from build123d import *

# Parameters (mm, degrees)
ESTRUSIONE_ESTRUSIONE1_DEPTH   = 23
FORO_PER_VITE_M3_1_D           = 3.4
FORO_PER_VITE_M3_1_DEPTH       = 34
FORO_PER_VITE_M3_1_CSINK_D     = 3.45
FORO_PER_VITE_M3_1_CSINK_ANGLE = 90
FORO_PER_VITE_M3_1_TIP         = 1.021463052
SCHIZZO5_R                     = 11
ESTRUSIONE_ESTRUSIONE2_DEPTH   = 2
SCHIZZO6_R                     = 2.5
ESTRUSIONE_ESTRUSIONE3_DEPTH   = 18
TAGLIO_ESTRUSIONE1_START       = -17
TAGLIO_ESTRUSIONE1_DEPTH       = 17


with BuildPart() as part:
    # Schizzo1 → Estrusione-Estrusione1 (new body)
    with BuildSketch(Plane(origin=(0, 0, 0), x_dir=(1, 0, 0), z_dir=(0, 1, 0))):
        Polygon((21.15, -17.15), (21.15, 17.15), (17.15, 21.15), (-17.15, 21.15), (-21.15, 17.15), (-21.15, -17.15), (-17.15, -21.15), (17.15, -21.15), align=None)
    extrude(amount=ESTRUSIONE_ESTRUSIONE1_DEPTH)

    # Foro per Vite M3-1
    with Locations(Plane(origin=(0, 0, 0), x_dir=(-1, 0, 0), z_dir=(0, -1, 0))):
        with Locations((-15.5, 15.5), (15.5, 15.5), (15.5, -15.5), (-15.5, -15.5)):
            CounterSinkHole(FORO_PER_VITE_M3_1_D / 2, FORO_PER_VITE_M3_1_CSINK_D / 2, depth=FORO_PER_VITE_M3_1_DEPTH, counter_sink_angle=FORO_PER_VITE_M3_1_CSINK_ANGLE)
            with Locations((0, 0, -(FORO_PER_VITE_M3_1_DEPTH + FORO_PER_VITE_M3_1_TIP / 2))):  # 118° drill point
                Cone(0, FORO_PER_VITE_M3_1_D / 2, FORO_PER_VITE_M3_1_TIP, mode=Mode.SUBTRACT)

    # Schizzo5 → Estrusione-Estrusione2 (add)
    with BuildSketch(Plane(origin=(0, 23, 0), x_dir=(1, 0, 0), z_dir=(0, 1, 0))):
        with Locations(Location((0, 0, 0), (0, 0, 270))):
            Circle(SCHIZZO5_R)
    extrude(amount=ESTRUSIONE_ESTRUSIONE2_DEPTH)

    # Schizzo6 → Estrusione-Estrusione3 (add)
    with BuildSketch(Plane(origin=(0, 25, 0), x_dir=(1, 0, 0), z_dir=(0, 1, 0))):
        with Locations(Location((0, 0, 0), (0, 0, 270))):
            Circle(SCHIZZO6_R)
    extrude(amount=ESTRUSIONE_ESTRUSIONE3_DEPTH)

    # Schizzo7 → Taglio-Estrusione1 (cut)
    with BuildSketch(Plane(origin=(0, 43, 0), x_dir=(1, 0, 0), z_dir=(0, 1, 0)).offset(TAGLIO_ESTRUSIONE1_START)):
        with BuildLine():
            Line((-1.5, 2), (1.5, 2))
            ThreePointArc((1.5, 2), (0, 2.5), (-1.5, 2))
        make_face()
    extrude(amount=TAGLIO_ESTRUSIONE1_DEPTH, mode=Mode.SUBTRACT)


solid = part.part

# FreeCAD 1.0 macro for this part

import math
import FreeCAD as App
import Part
import Sketcher
from FreeCAD import Vector
Q = App.Units.Quantity

doc = App.newDocument("Part")
body = doc.addObject("PartDesign::Body", "Body")

# Sketch on XZ plane
sketch1 = doc.addObject("Sketcher::SketchObject", "Sketch")
body.addObject(sketch1)
sketch1.AttachmentSupport = (doc.XZ_Plane, [""])
sketch1.MapMode = "FlatFace"
sketch1.addGeometry(Part.LineSegment(Vector(21, 17, 0), Vector(21, -17, 0)), False)
sketch1.addGeometry(Part.LineSegment(Vector(21, -17, 0), Vector(17, -21, 0)), False)
sketch1.addGeometry(Part.LineSegment(Vector(17, -21, 0), Vector(-17, -21, 0)), False)
sketch1.addGeometry(Part.LineSegment(Vector(-17, -21, 0), Vector(-21, -17, 0)), False)
sketch1.addGeometry(Part.LineSegment(Vector(-21, -17, 0), Vector(-21, 17, 0)), False)
sketch1.addGeometry(Part.LineSegment(Vector(-21, 17, 0), Vector(-17, 21, 0)), False)
sketch1.addGeometry(Part.LineSegment(Vector(-17, 21, 0), Vector(17, 21, 0)), False)
sketch1.addGeometry(Part.LineSegment(Vector(17, 21, 0), Vector(21, 17, 0)), False)
sketch1.addConstraint(Sketcher.Constraint("Coincident", 0, 2, 1, 1))
sketch1.addConstraint(Sketcher.Constraint("Coincident", 1, 2, 2, 1))
sketch1.addConstraint(Sketcher.Constraint("Coincident", 2, 2, 3, 1))
sketch1.addConstraint(Sketcher.Constraint("Coincident", 3, 2, 4, 1))
sketch1.addConstraint(Sketcher.Constraint("Coincident", 4, 2, 5, 1))
sketch1.addConstraint(Sketcher.Constraint("Coincident", 5, 2, 6, 1))
sketch1.addConstraint(Sketcher.Constraint("Coincident", 6, 2, 7, 1))
sketch1.addConstraint(Sketcher.Constraint("Coincident", 7, 2, 0, 1))
sketch1.addConstraint(Sketcher.Constraint("Vertical", 0))
sketch1.addConstraint(Sketcher.Constraint("Horizontal", 2))
sketch1.addConstraint(Sketcher.Constraint("Vertical", 4))
sketch1.addConstraint(Sketcher.Constraint("Horizontal", 6))
sketch1.addConstraint(Sketcher.Constraint("Symmetric", 0, 2, 4, 2, -1, 1))
sketch1.addConstraint(Sketcher.Constraint("Symmetric", 1, 2, 5, 2, -1, 1))
sketch1.addConstraint(Sketcher.Constraint("Perpendicular", 1, 3))
sketch1.addConstraint(Sketcher.Constraint("Perpendicular", 5, 7))
sketch1.addConstraint(Sketcher.Constraint("Horizontal", 0, 2, 3, 2))
sketch1.addConstraint(Sketcher.Constraint("Horizontal", 4, 2, 7, 2))
sketch1.addConstraint(Sketcher.Constraint("Vertical", 2, 2, 5, 2))
sketch1.addConstraint(Sketcher.Constraint("Equal", 6, 0))
sketch1.addConstraint(Sketcher.Constraint("DistanceX", 2, 2, 2, 1, Q("34.3 mm")))
sketch1.addConstraint(Sketcher.Constraint("DistanceX", 1, 2, 0, 2, Q("4 mm")))
pad1 = doc.addObject("PartDesign::Pad", "Pad")
body.addObject(pad1)
pad1.Profile = sketch1
pad1.Length = 23
pad1.Reversed = True

# Sketch on XZ plane
sketch2 = doc.addObject("Sketcher::SketchObject", "Sketch001")
body.addObject(sketch2)
sketch2.AttachmentSupport = (doc.XZ_Plane, [""])
sketch2.MapMode = "FlatFace"
sketch2.addGeometry(Part.Circle(Vector(15.5, -15.5, 0), Vector(0, 0, 1), 1.7), False)
sketch2.addGeometry(Part.Circle(Vector(-15.5, -15.5, 0), Vector(0, 0, 1), 1.7), False)
sketch2.addGeometry(Part.Circle(Vector(-15.5, 15.5, 0), Vector(0, 0, 1), 1.7), False)
sketch2.addGeometry(Part.Circle(Vector(15.5, 15.5, 0), Vector(0, 0, 1), 1.7), False)
sketch2.addConstraint(Sketcher.Constraint("Equal", 0, 1))
sketch2.addConstraint(Sketcher.Constraint("Equal", 1, 2))
sketch2.addConstraint(Sketcher.Constraint("Equal", 2, 3))
sketch2.addConstraint(Sketcher.Constraint("Symmetric", 0, 3, 2, 3, -1, 1))
sketch2.addConstraint(Sketcher.Constraint("Symmetric", 1, 3, 3, 3, -1, 1))
sketch2.addConstraint(Sketcher.Constraint("Symmetric", 0, 3, 1, 3, -2))
sketch2.addConstraint(Sketcher.Constraint("Diameter", 0, Q("3.4 mm")))
sketch2.addConstraint(Sketcher.Constraint("DistanceX", 1, 3, 0, 3, Q("31 mm")))
sketch2.addConstraint(Sketcher.Constraint("DistanceY", 1, 3, 2, 3, Q("31 mm")))
doc.recompute()
hole = doc.addObject("PartDesign::Hole", "Hole")
body.addObject(hole)
hole.Profile = sketch2
hole.ThreadType = "None"
hole.Diameter = 3.4
hole.DepthType = "Dimension"
hole.Depth = 34
hole.DrillPoint = "Angled"
hole.DrillPointAngle = 118
hole.HoleCutType = "Countersink"
hole.HoleCutDiameter = 3.45
hole.HoleCutCountersinkAngle = 90

# Sketch on XZ plane
sketch3 = doc.addObject("Sketcher::SketchObject", "Sketch002")
body.addObject(sketch3)
sketch3.AttachmentSupport = (doc.XZ_Plane, [""])
sketch3.MapMode = "FlatFace"
sketch3.AttachmentOffset = App.Placement(Vector(0, 0, -23), App.Rotation())
sketch3.addGeometry(Part.Circle(Vector(0, 0, 0), Vector(0, 0, 1), 11), False)
sketch3.addConstraint(Sketcher.Constraint("Coincident", 0, 3, -1, 1))
sketch3.addConstraint(Sketcher.Constraint("Diameter", 0, Q("22 mm")))
pad2 = doc.addObject("PartDesign::Pad", "Pad001")
body.addObject(pad2)
pad2.Profile = sketch3
pad2.Length = 2
pad2.Reversed = True

# Sketch on XZ plane
sketch4 = doc.addObject("Sketcher::SketchObject", "Sketch003")
body.addObject(sketch4)
sketch4.AttachmentSupport = (doc.XZ_Plane, [""])
sketch4.MapMode = "FlatFace"
sketch4.AttachmentOffset = App.Placement(Vector(0, 0, -25), App.Rotation())
sketch4.addGeometry(Part.Circle(Vector(0, 0, 0), Vector(0, 0, 1), 2.5), False)
sketch4.addConstraint(Sketcher.Constraint("Coincident", 0, 3, -1, 1))
sketch4.addConstraint(Sketcher.Constraint("Diameter", 0, Q("5 mm")))
pad3 = doc.addObject("PartDesign::Pad", "Pad002")
body.addObject(pad3)
pad3.Profile = sketch4
pad3.Length = 18
pad3.Reversed = True

# Sketch on XZ plane
sketch5 = doc.addObject("Sketcher::SketchObject", "Sketch004")
body.addObject(sketch5)
sketch5.AttachmentSupport = (doc.XZ_Plane, [""])
sketch5.MapMode = "FlatFace"
sketch5.AttachmentOffset = App.Placement(Vector(0, 0, -26), App.Rotation())
sketch5.addGeometry(Part.LineSegment(Vector(-1.5, -2, 0), Vector(1.5, -2, 0)), False)
sketch5.addGeometry(Part.ArcOfCircle(Part.Circle(Vector(0, 0, 0), Vector(0, 0, 1), 2.5), math.radians(-127), math.radians(-53)), False)
sketch5.addConstraint(Sketcher.Constraint("Coincident", 0, 1, 1, 1))
sketch5.addConstraint(Sketcher.Constraint("Coincident", 1, 2, 0, 2))
sketch5.addConstraint(Sketcher.Constraint("Horizontal", 0))
sketch5.addConstraint(Sketcher.Constraint("Coincident", 1, 3, -1, 1))
sketch5.addConstraint(Sketcher.Constraint("Radius", 1, Q("2.5 mm")))
sketch5.addConstraint(Sketcher.Constraint("DistanceX", 0, 1, 0, 2, Q("3 mm")))
pocket1 = doc.addObject("PartDesign::Pocket", "Pocket")
body.addObject(pocket1)
pocket1.Profile = sketch5
pocket1.Length = 17

doc.recompute()
